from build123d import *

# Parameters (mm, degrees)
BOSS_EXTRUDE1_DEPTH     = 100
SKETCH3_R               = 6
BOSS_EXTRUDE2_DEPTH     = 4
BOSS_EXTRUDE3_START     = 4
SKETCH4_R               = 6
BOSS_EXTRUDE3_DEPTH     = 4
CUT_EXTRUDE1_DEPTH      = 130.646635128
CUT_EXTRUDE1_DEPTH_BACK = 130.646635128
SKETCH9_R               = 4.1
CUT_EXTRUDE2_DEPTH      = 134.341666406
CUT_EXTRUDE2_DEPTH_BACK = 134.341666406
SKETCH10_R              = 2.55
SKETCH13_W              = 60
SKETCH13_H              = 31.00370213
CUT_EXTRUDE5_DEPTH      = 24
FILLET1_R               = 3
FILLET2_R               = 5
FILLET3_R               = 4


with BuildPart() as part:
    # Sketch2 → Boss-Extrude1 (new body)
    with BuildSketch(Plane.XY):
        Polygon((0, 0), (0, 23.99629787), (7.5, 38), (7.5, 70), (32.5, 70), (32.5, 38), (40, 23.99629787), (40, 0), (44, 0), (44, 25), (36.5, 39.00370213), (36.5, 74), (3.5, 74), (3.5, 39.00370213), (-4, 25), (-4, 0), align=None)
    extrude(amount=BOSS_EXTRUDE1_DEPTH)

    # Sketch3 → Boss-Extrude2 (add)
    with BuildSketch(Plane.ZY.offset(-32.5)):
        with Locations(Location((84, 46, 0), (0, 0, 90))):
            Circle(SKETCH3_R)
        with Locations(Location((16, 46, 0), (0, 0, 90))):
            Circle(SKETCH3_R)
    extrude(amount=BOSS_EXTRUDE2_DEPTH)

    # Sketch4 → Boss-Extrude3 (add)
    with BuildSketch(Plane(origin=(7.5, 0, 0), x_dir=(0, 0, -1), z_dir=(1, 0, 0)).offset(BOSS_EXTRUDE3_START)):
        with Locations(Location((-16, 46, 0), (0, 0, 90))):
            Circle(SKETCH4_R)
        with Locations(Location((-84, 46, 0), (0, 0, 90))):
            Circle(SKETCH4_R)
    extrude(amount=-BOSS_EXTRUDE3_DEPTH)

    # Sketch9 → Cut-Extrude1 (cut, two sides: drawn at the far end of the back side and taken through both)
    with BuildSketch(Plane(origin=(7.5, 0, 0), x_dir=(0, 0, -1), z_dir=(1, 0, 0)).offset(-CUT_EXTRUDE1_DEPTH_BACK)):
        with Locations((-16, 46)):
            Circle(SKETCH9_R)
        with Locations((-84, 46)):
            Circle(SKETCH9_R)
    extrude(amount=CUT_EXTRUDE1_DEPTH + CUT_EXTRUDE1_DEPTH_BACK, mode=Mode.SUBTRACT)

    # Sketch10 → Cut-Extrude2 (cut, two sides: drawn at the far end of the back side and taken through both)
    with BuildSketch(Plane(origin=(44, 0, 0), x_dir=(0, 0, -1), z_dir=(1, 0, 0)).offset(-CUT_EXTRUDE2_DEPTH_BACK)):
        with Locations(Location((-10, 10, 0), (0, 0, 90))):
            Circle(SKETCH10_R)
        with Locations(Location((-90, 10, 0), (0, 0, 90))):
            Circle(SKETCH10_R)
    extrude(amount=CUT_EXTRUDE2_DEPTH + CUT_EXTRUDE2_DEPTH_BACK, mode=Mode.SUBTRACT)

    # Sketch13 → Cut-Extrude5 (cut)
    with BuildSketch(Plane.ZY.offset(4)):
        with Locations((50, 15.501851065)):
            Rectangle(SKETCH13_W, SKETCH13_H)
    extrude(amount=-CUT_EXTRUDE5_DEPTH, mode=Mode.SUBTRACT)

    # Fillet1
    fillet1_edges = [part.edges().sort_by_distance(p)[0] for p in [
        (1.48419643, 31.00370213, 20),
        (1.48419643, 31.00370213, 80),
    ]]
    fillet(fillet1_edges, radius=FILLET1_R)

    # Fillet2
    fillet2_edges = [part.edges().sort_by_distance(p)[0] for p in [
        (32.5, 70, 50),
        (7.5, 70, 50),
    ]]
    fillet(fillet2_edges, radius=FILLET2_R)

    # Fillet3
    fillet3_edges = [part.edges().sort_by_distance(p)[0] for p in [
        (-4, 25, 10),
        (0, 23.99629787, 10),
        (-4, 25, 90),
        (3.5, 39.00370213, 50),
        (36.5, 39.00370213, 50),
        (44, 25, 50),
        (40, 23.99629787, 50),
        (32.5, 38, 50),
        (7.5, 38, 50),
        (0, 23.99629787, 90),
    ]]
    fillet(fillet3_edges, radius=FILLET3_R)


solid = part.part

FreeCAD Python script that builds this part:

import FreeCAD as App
import Part
import Sketcher


def edges_at(feature, points):
    """Names of the edges that pass closest to the given points."""
    edges = feature.Shape.Edges
    near = lambda p: min(range(len(edges)), key=lambda i: edges[i].distToShape(Part.Vertex(*p))[0])
    return sorted({f"Edge{near(p) + 1}" for p in points})

doc = App.newDocument("Part")
params = doc.addObject("Spreadsheet::Sheet", "Params")
for row, (alias, value) in enumerate([
    ("sketch1_width", "25 mm"),
    ("sketch1_width2", "4 mm"),
    ("sketch1_height", "32 mm"),
    ("pad1_length", "100 mm"),
    ("sketch2_diameter", "12 mm"),
    ("pad2_length", "4 mm"),
    ("sketch3_diameter", "12 mm"),
    ("pad3_length", "4 mm"),
    ("sketch4_diameter", "8.2 mm"),
    ("sketch5_diameter", "5.1 mm"),
    ("sketch6_height", "60 mm"),
    ("pocket3_length", "24 mm"),
    ("fillet_radius", "3 mm"),
    ("fillet2_radius", "5 mm"),
    ("fillet3_radius", "4 mm"),
], start=1):
    params.set(f"A{row}", alias)
    params.set(f"B{row}", "=" + value)
    params.setAlias(f"B{row}", alias)

body = doc.addObject("PartDesign::Body", "Body")

# Sketch on XY plane
sketch1 = body.newObject("Sketcher::SketchObject", "Sketch")
sketch1.AttachmentSupport = (doc.getObject("XY_Plane"), [""])
sketch1.MapMode = "FlatFace"
sketch1.addGeometry([
    Part.LineSegment(App.Vector(0, 0, 0), App.Vector(0, 24, 0)),  # 0
    Part.LineSegment(App.Vector(0, 24, 0), App.Vector(7.5, 38, 0)),  # 1
    Part.LineSegment(App.Vector(7.5, 38, 0), App.Vector(7.5, 70, 0)),  # 2
    Part.LineSegment(App.Vector(7.5, 70, 0), App.Vector(32.5, 70, 0)),  # 3
    Part.LineSegment(App.Vector(32.5, 70, 0), App.Vector(32.5, 38, 0)),  # 4
    Part.LineSegment(App.Vector(32.5, 38, 0), App.Vector(40, 24, 0)),  # 5
    Part.LineSegment(App.Vector(40, 24, 0), App.Vector(40, 0, 0)),  # 6
    Part.LineSegment(App.Vector(40, 0, 0), App.Vector(44, 0, 0)),  # 7
    Part.LineSegment(App.Vector(44, 0, 0), App.Vector(44, 25, 0)),  # 8
    Part.LineSegment(App.Vector(44, 25, 0), App.Vector(36.5, 39, 0)),  # 9
    Part.LineSegment(App.Vector(36.5, 39, 0), App.Vector(36.5, 74, 0)),  # 10
    Part.LineSegment(App.Vector(36.5, 74, 0), App.Vector(3.5, 74, 0)),  # 11
    Part.LineSegment(App.Vector(3.5, 74, 0), App.Vector(3.5, 39, 0)),  # 12
    Part.LineSegment(App.Vector(3.5, 39, 0), App.Vector(-4, 25, 0)),  # 13
    Part.LineSegment(App.Vector(-4, 25, 0), App.Vector(-4, 0, 0)),  # 14
    Part.LineSegment(App.Vector(-4, 0, 0), App.Vector(0, 0, 0)),  # 15
], False)
sketch1.addConstraint([
    Sketcher.Constraint("Coincident", 0, 2, 1, 1),
    Sketcher.Constraint("Coincident", 1, 2, 2, 1),
    Sketcher.Constraint("Coincident", 2, 2, 3, 1),
    Sketcher.Constraint("Coincident", 3, 2, 4, 1),
    Sketcher.Constraint("Coincident", 4, 2, 5, 1),
    Sketcher.Constraint("Coincident", 5, 2, 6, 1),
    Sketcher.Constraint("Coincident", 6, 2, 7, 1),
    Sketcher.Constraint("Coincident", 7, 2, 8, 1),
    Sketcher.Constraint("Coincident", 8, 2, 9, 1),
    Sketcher.Constraint("Coincident", 9, 2, 10, 1),
    Sketcher.Constraint("Coincident", 10, 2, 11, 1),
    Sketcher.Constraint("Coincident", 11, 2, 12, 1),
    Sketcher.Constraint("Coincident", 12, 2, 13, 1),
    Sketcher.Constraint("Coincident", 13, 2, 14, 1),
    Sketcher.Constraint("Coincident", 14, 2, 15, 1),
    Sketcher.Constraint("Coincident", 15, 2, 0, 1),
    Sketcher.Constraint("Vertical", 0),
    Sketcher.Constraint("Vertical", 2),
    Sketcher.Constraint("Horizontal", 3),
    Sketcher.Constraint("Vertical", 4),
    Sketcher.Constraint("Vertical", 6),
    Sketcher.Constraint("Horizontal", 7),
    Sketcher.Constraint("Vertical", 8),
    Sketcher.Constraint("Vertical", 10),
    Sketcher.Constraint("Horizontal", 11),
    Sketcher.Constraint("Vertical", 12),
    Sketcher.Constraint("Vertical", 14),
    Sketcher.Constraint("Horizontal", 15),
    Sketcher.Constraint("Coincident", 15, 2, -1, 1),
    Sketcher.Constraint("PointOnObject", 6, 2, -1),
    Sketcher.Constraint("Parallel", 5, 9),
    Sketcher.Constraint("Parallel", 1, 13),
    Sketcher.Constraint("Horizontal", 1, 2, 4, 2),
    Sketcher.Constraint("Horizontal", 0, 2, 5, 2),
    Sketcher.Constraint("Horizontal", 9, 2, 12, 2),
    Sketcher.Constraint("Horizontal", 8, 2, 13, 2),
    Sketcher.Constraint("Equal", 7, 15),
    Sketcher.Constraint("Equal", 3, 8),
    Sketcher.Constraint("Equal", 1, 5),
    Sketcher.Constraint("Equal", 5, 9),
    Sketcher.Constraint("DistanceX", 3, 1, 3, 2, 25.0),
    Sketcher.Constraint("DistanceX", 7, 1, 7, 2, 4.0),
    Sketcher.Constraint("DistanceY", 2, 1, 2, 2, 32.0),
    Sketcher.Constraint("DistanceY", -1, 1, 1, 2, 38.0),
    Sketcher.Constraint("DistanceX", -1, 1, 5, 2, 40.0),
    Sketcher.Constraint("DistanceY", -1, 1, 10, 2, 74.0),
    Sketcher.Constraint("DistanceY", 0, 1, 0, 2, 23.996298),
])
sketch1.setExpression("Constraints[40]", "Params.sketch1_width")
sketch1.setExpression("Constraints[41]", "Params.sketch1_width2")
sketch1.setExpression("Constraints[42]", "Params.sketch1_height")
pad1 = body.newObject("PartDesign::Pad", "Pad")
pad1.Profile = sketch1
pad1.setExpression("Length", "Params.pad1_length")

# Sketch on YZ plane
sketch2 = body.newObject("Sketcher::SketchObject", "Sketch001")
sketch2.AttachmentSupport = (doc.getObject("YZ_Plane"), [""])
sketch2.MapMode = "FlatFace"
sketch2.AttachmentOffset = App.Placement(App.Vector(0, 0, 32.5), App.Rotation())
sketch2.addGeometry([
    Part.Circle(App.Vector(46, 84, 0), App.Vector(0, 0, 1), 6),
    Part.Circle(App.Vector(46, 16, 0), App.Vector(0, 0, 1), 6),
], False)
sketch2.addConstraint([
    Sketcher.Constraint("Equal", 0, 1),
    Sketcher.Constraint("Vertical", 0, 3, 1, 3),
    Sketcher.Constraint("Diameter", 0, 12.0),
    Sketcher.Constraint("DistanceX", -1, 1, 0, 3, 46.0),
    Sketcher.Constraint("DistanceY", -1, 1, 0, 3, 84.0),
    Sketcher.Constraint("DistanceY", -1, 1, 1, 3, 16.0),
])
sketch2.setExpression("Constraints[2]", "Params.sketch2_diameter")
pad2 = body.newObject("PartDesign::Pad", "Pad001")
pad2.Profile = sketch2
pad2.setExpression("Length", "Params.pad2_length")
pad2.Reversed = True

# Sketch on YZ plane
sketch3 = body.newObject("Sketcher::SketchObject", "Sketch002")
sketch3.AttachmentSupport = (doc.getObject("YZ_Plane"), [""])
sketch3.MapMode = "FlatFace"
sketch3.AttachmentOffset = App.Placement(App.Vector(0, 0, 11.5), App.Rotation())
sketch3.addGeometry([
    Part.Circle(App.Vector(46, 16, 0), App.Vector(0, 0, 1), 6),
    Part.Circle(App.Vector(46, 84, 0), App.Vector(0, 0, 1), 6),
], False)
sketch3.addConstraint([
    Sketcher.Constraint("Equal", 0, 1),
    Sketcher.Constraint("Vertical", 0, 3, 1, 3),
    Sketcher.Constraint("Diameter", 0, 12.0),
    Sketcher.Constraint("DistanceX", -1, 1, 0, 3, 46.0),
    Sketcher.Constraint("DistanceY", -1, 1, 0, 3, 16.0),
    Sketcher.Constraint("DistanceY", -1, 1, 1, 3, 84.0),
])
sketch3.setExpression("Constraints[2]", "Params.sketch3_diameter")
pad3 = body.newObject("PartDesign::Pad", "Pad002")
pad3.Profile = sketch3
pad3.setExpression("Length", "Params.pad3_length")
pad3.Reversed = True

# Sketch on YZ plane
sketch4 = body.newObject("Sketcher::SketchObject", "Sketch003")
sketch4.AttachmentSupport = (doc.getObject("YZ_Plane"), [""])
sketch4.MapMode = "FlatFace"
sketch4.AttachmentOffset = App.Placement(App.Vector(0, 0, 7.5), App.Rotation())
sketch4.addGeometry([
    Part.Circle(App.Vector(46, 16, 0), App.Vector(0, 0, 1), 4.1),
    Part.Circle(App.Vector(46, 84, 0), App.Vector(0, 0, 1), 4.1),
], False)
sketch4.addConstraint([
    Sketcher.Constraint("Equal", 0, 1),
    Sketcher.Constraint("Vertical", 0, 3, 1, 3),
    Sketcher.Constraint("Diameter", 0, 8.2),
    Sketcher.Constraint("DistanceX", -1, 1, 0, 3, 46.0),
    Sketcher.Constraint("DistanceY", -1, 1, 0, 3, 16.0),
    Sketcher.Constraint("DistanceY", -1, 1, 1, 3, 84.0),
])
sketch4.setExpression("Constraints[2]", "Params.sketch4_diameter")
pocket1 = body.newObject("PartDesign::Pocket", "Pocket")
pocket1.Profile = sketch4
pocket1.Type = "ThroughAll"
pocket1.Midplane = True

# Sketch on YZ plane
sketch5 = body.newObject("Sketcher::SketchObject", "Sketch004")
sketch5.AttachmentSupport = (doc.getObject("YZ_Plane"), [""])
sketch5.MapMode = "FlatFace"
sketch5.AttachmentOffset = App.Placement(App.Vector(0, 0, 44), App.Rotation())
sketch5.addGeometry([
    Part.Circle(App.Vector(10, 10, 0), App.Vector(0, 0, 1), 2.5),
    Part.Circle(App.Vector(10, 90, 0), App.Vector(0, 0, 1), 2.5),
], False)
sketch5.addConstraint([
    Sketcher.Constraint("Equal", 0, 1),
    Sketcher.Constraint("Vertical", 0, 3, 1, 3),
    Sketcher.Constraint("Diameter", 0, 5.1),
    Sketcher.Constraint("DistanceX", -1, 1, 0, 3, 10.0),
    Sketcher.Constraint("DistanceY", -1, 1, 0, 3, 10.0),
    Sketcher.Constraint("DistanceY", -1, 1, 1, 3, 90.0),
])
sketch5.setExpression("Constraints[2]", "Params.sketch5_diameter")
pocket2 = body.newObject("PartDesign::Pocket", "Pocket001")
pocket2.Profile = sketch5
pocket2.Type = "ThroughAll"
pocket2.Midplane = True

# Sketch on YZ plane
sketch6 = body.newObject("Sketcher::SketchObject", "Sketch005")
sketch6.AttachmentSupport = (doc.getObject("YZ_Plane"), [""])
sketch6.MapMode = "FlatFace"
sketch6.AttachmentOffset = App.Placement(App.Vector(0, 0, -4), App.Rotation())
sketch6.addGeometry([
    Part.LineSegment(App.Vector(31, 20, 0), App.Vector(0, 20, 0)),
    Part.LineSegment(App.Vector(0, 20, 0), App.Vector(0, 80, 0)),
    Part.LineSegment(App.Vector(0, 80, 0), App.Vector(31, 80, 0)),
    Part.LineSegment(App.Vector(31, 80, 0), App.Vector(31, 20, 0)),
], False)
sketch6.addConstraint([
    Sketcher.Constraint("Coincident", 0, 2, 1, 1),
    Sketcher.Constraint("Coincident", 1, 2, 2, 1),
    Sketcher.Constraint("Coincident", 2, 2, 3, 1),
    Sketcher.Constraint("Coincident", 3, 2, 0, 1),
    Sketcher.Constraint("Horizontal", 0),
    Sketcher.Constraint("Vertical", 1),
    Sketcher.Constraint("Horizontal", 2),
    Sketcher.Constraint("Vertical", 3),
    Sketcher.Constraint("PointOnObject", 0, 2, -2),
    Sketcher.Constraint("DistanceY", 1, 1, 1, 2, 60.0),
    Sketcher.Constraint("DistanceY", -1, 1, 0, 2, 20.0),
    Sketcher.Constraint("DistanceX", 0, 2, 0, 1, 31.003702),
])
sketch6.setExpression("Constraints[9]", "Params.sketch6_height")
pocket3 = body.newObject("PartDesign::Pocket", "Pocket002")
pocket3.Profile = sketch6
pocket3.setExpression("Length", "Params.pocket3_length")
pocket3.Reversed = True
doc.recompute()

fillet = body.newObject("PartDesign::Fillet", "Fillet")
fillet.Base = (pocket3, edges_at(pocket3, [(1.484, 31.004, 20), (1.484, 31.004, 80)]))
fillet.setExpression("Radius", "Params.fillet_radius")
doc.recompute()

fillet2 = body.newObject("PartDesign::Fillet", "Fillet001")
fillet2.Base = (fillet, edges_at(fillet, [(32.5, 70, 50), (7.5, 70, 50)]))
fillet2.setExpression("Radius", "Params.fillet2_radius")
doc.recompute()

fillet3 = body.newObject("PartDesign::Fillet", "Fillet002")
fillet3.Base = (fillet2, edges_at(fillet2, [
    (-4, 25, 10),
    (0, 23.996, 10),
    (-4, 25, 90),
    (3.5, 39.004, 50),
    (36.5, 39.004, 50),
    (44, 25, 50),
    (40, 23.996, 50),
    (32.5, 38, 50),
    (7.5, 38, 50),
    (0, 23.996, 90),
]))
fillet3.setExpression("Radius", "Params.fillet3_radius")

doc.recompute()
